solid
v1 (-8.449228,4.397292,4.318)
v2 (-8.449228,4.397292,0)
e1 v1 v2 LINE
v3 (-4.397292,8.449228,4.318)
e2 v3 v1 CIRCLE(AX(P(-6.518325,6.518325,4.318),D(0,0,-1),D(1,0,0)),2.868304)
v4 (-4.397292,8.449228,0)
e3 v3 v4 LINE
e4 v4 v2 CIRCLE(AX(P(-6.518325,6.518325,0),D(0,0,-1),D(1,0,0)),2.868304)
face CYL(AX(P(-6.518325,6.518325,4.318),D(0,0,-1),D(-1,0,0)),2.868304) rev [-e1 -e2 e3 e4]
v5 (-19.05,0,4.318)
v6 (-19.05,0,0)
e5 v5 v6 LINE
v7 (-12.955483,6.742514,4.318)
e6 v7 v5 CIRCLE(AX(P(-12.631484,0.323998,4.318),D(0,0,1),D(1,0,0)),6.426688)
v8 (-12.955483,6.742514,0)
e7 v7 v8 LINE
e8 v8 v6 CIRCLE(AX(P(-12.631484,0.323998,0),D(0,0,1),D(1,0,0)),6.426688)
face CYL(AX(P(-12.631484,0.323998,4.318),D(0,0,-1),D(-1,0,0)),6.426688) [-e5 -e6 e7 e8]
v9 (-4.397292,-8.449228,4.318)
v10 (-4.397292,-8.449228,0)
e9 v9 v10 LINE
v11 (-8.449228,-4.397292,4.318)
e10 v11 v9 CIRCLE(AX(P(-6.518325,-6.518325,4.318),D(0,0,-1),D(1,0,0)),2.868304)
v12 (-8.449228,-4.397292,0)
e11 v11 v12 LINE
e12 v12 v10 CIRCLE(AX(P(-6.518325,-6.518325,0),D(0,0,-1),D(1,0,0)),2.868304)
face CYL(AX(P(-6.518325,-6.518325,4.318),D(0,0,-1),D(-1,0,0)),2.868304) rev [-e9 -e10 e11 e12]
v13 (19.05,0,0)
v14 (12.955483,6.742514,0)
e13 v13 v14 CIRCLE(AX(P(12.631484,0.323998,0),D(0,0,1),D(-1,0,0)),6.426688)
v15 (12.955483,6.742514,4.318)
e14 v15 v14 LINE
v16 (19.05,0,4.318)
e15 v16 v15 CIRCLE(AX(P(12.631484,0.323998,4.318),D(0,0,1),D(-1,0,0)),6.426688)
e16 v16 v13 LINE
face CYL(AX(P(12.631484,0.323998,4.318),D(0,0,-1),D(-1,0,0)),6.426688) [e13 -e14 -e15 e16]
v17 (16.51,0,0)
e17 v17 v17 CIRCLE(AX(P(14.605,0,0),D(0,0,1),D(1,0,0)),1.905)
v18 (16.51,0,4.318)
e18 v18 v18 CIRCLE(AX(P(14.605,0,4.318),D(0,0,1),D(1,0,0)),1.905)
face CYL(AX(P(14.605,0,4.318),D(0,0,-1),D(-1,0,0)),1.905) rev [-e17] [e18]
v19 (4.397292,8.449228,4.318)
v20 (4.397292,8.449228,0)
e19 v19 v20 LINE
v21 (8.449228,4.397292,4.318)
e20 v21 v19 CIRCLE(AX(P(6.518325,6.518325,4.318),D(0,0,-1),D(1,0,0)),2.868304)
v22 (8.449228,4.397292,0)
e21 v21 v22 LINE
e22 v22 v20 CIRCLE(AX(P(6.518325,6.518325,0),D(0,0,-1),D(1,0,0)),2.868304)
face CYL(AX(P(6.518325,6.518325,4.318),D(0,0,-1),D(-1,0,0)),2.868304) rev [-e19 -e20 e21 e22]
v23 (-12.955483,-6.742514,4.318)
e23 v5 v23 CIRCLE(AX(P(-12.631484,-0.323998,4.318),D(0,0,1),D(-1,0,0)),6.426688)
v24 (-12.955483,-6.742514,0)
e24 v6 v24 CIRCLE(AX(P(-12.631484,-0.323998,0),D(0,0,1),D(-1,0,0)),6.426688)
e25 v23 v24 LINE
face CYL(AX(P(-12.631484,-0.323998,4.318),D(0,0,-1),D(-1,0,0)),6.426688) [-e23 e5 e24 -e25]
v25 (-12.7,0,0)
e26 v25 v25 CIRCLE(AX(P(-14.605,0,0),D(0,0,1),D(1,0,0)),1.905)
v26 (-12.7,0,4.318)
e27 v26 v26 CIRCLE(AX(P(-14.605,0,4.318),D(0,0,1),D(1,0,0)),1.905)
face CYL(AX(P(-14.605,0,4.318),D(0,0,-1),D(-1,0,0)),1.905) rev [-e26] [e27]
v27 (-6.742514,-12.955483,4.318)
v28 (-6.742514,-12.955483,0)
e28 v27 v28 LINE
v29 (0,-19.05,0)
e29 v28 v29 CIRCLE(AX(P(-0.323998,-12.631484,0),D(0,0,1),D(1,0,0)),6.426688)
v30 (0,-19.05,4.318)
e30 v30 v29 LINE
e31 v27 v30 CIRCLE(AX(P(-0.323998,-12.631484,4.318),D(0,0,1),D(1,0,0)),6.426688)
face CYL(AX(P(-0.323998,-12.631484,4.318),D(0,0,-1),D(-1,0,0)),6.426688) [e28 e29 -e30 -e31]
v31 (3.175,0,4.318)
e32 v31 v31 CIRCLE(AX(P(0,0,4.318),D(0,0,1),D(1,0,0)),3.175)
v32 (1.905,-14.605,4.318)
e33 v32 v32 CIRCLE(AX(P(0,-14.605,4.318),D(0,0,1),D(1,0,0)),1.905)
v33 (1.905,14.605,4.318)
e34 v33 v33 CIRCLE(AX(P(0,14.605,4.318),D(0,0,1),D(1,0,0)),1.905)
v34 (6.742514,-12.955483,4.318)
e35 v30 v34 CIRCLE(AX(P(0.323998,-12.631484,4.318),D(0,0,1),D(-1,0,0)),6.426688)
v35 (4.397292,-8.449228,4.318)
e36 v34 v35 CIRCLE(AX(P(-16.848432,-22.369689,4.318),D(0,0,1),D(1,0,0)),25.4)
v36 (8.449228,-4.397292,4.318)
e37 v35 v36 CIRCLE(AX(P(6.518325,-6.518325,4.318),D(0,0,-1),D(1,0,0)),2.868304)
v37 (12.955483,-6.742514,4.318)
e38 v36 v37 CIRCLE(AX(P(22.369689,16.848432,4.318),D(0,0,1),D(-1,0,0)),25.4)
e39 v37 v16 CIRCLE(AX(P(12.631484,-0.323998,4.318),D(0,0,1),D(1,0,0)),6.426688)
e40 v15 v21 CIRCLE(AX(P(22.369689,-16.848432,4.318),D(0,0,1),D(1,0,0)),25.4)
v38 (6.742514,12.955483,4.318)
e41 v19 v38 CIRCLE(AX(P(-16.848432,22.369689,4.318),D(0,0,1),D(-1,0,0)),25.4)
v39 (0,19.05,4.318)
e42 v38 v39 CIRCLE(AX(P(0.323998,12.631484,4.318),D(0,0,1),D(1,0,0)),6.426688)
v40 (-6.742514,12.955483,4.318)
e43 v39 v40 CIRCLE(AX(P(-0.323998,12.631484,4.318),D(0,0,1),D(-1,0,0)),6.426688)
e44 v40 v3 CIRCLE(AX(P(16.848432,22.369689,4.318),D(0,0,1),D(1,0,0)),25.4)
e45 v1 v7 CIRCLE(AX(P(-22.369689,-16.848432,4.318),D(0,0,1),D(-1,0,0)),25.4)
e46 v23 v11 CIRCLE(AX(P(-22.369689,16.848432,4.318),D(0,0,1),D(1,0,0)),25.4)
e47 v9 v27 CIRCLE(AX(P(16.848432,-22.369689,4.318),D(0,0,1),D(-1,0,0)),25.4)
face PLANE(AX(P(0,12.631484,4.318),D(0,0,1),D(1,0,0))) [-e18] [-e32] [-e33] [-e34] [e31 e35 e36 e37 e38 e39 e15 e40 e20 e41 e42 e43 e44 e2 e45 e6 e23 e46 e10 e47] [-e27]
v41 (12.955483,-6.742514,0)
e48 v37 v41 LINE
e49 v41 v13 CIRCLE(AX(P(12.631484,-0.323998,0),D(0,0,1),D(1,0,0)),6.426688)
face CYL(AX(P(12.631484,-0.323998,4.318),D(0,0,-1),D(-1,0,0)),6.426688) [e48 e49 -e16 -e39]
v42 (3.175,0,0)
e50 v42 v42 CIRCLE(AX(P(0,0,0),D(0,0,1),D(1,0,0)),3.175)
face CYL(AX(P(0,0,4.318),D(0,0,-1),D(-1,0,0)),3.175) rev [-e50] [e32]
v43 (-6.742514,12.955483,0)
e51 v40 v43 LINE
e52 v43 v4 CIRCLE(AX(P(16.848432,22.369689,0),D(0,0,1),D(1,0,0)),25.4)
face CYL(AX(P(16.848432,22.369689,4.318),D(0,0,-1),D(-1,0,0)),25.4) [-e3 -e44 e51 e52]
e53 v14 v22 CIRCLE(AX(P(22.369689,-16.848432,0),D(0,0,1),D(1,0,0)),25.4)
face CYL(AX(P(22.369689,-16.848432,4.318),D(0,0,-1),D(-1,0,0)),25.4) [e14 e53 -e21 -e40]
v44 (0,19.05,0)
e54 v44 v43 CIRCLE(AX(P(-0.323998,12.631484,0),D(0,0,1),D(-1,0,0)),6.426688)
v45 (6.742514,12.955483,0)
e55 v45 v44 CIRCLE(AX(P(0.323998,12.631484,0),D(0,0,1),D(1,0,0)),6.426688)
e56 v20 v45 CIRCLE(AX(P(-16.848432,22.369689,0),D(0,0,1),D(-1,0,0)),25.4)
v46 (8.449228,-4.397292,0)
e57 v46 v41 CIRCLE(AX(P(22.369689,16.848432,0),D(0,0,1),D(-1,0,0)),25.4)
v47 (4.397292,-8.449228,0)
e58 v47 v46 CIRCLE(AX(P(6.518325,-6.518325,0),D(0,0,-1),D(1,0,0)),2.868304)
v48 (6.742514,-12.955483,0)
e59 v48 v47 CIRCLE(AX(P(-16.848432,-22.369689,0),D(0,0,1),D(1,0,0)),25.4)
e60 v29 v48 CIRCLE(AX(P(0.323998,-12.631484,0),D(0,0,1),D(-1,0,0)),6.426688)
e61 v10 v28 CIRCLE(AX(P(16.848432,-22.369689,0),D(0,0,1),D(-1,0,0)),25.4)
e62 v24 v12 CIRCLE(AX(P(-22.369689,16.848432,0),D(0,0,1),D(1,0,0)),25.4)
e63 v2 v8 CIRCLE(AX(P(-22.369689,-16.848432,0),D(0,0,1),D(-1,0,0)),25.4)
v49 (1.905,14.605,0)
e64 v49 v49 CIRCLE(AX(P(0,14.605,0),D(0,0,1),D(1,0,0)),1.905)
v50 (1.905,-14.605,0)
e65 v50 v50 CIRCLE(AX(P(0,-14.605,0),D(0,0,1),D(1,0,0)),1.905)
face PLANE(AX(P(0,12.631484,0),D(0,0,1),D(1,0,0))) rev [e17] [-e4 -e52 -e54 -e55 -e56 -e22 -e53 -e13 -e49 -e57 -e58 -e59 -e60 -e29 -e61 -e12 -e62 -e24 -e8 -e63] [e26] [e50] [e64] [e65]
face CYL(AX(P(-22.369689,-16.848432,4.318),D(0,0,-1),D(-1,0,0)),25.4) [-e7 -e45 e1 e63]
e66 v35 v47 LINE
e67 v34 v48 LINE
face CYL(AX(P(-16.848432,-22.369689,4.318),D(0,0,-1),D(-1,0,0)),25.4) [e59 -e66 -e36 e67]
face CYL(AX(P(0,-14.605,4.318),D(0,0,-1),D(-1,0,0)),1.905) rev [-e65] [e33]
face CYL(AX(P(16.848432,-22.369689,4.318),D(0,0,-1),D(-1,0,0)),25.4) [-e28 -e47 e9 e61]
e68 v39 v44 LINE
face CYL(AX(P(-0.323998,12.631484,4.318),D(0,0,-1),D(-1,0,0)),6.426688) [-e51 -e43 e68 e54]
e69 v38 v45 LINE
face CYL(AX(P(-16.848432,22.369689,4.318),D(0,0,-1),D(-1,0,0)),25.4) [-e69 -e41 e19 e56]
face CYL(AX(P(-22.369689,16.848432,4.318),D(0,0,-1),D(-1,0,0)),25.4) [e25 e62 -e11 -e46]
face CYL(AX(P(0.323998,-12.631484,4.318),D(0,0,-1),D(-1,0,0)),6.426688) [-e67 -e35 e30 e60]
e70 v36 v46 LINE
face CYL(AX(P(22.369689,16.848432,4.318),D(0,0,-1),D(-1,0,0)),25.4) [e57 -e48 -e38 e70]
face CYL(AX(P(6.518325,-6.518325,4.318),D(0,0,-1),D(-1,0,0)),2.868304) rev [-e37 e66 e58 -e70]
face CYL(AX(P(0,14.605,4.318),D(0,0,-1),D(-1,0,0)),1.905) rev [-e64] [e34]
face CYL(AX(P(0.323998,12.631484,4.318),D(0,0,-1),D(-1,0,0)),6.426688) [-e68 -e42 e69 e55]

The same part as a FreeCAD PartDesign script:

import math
import FreeCAD as App
import Part
import Sketcher
Q = App.Units.Quantity

doc = App.newDocument("Part")
body = doc.addObject("PartDesign::Body", "Body")

# Sketch on XY plane
sketch1 = body.newObject("Sketcher::SketchObject", "Sketch")
sketch1.AttachmentSupport = (doc.getObject("XY_Plane"), [""])
sketch1.MapMode = "FlatFace"
sketch1.addGeometry([
    Part.ArcOfCircle(Part.Circle(App.Vector(-0.3, 12.6, 0), App.Vector(0, 0, 1), 6.4), math.radians(87), math.radians(177)),  # 0
    Part.ArcOfCircle(Part.Circle(App.Vector(16.8, 22.4, 0), App.Vector(0, 0, 1), 25.4), math.radians(-158.25), math.radians(-146.77)),  # 1
    Part.ArcOfCircle(Part.Circle(App.Vector(-6.5, 6.5, 0), App.Vector(0, 0, 1), 2.9), math.radians(-132), math.radians(42)),  # 2
    Part.ArcOfCircle(Part.Circle(App.Vector(-22.4, -16.8, 0), App.Vector(0, 0, 1), 25.4), math.radians(56.77), math.radians(68.25)),  # 3
    Part.ArcOfCircle(Part.Circle(App.Vector(-12.6, 0.3, 0), App.Vector(0, 0, 1), 6.4), math.radians(93), math.radians(183)),  # 4
    Part.ArcOfCircle(Part.Circle(App.Vector(-12.6, -0.3, 0), App.Vector(0, 0, 1), 6.4), math.radians(177), math.radians(267)),  # 5
    Part.ArcOfCircle(Part.Circle(App.Vector(-22.4, 16.8, 0), App.Vector(0, 0, 1), 25.4), math.radians(-68.25), math.radians(-56.77)),  # 6
    Part.ArcOfCircle(Part.Circle(App.Vector(-6.5, -6.5, 0), App.Vector(0, 0, 1), 2.9), math.radians(-42), math.radians(132)),  # 7
    Part.ArcOfCircle(Part.Circle(App.Vector(16.8, -22.4, 0), App.Vector(0, 0, 1), 25.4), math.radians(146.77), math.radians(158.25)),  # 8
    Part.ArcOfCircle(Part.Circle(App.Vector(-0.3, -12.6, 0), App.Vector(0, 0, 1), 6.4), math.radians(-177), math.radians(-87)),  # 9
    Part.ArcOfCircle(Part.Circle(App.Vector(0.3, -12.6, 0), App.Vector(0, 0, 1), 6.4), math.radians(-93), math.radians(-3)),  # 10
    Part.ArcOfCircle(Part.Circle(App.Vector(-16.8, -22.4, 0), App.Vector(0, 0, 1), 25.4), math.radians(21.75), math.radians(33.23)),  # 11
    Part.ArcOfCircle(Part.Circle(App.Vector(6.5, -6.5, 0), App.Vector(0, 0, 1), 2.9), math.radians(48), math.radians(222)),  # 12
    Part.ArcOfCircle(Part.Circle(App.Vector(22.4, 16.8, 0), App.Vector(0, 0, 1), 25.4), math.radians(-123.23), math.radians(-111.75)),  # 13
    Part.ArcOfCircle(Part.Circle(App.Vector(12.6, -0.3, 0), App.Vector(0, 0, 1), 6.4), math.radians(-87), math.radians(3)),  # 14
    Part.ArcOfCircle(Part.Circle(App.Vector(12.6, 0.3, 0), App.Vector(0, 0, 1), 6.4), math.radians(-3), math.radians(87)),  # 15
    Part.ArcOfCircle(Part.Circle(App.Vector(22.4, -16.8, 0), App.Vector(0, 0, 1), 25.4), math.radians(111.75), math.radians(123.23)),  # 16
    Part.ArcOfCircle(Part.Circle(App.Vector(6.5, 6.5, 0), App.Vector(0, 0, 1), 2.9), math.radians(138), math.radians(312)),  # 17
    Part.ArcOfCircle(Part.Circle(App.Vector(-16.8, 22.4, 0), App.Vector(0, 0, 1), 25.4), math.radians(-33.23), math.radians(-21.75)),  # 18
    Part.ArcOfCircle(Part.Circle(App.Vector(0.3, 12.6, 0), App.Vector(0, 0, 1), 6.4), math.radians(3), math.radians(93)),  # 19
    Part.Circle(App.Vector(0, -14.6, 0), App.Vector(0, 0, 1), 1.9),  # 20
    Part.Circle(App.Vector(14.6, 0, 0), App.Vector(0, 0, 1), 1.9),  # 21
    Part.Circle(App.Vector(0, 0, 0), App.Vector(0, 0, 1), 3.2),  # 22
    Part.Circle(App.Vector(-14.6, 0, 0), App.Vector(0, 0, 1), 1.9),  # 23
    Part.Circle(App.Vector(0, 14.6, 0), App.Vector(0, 0, 1), 1.9),  # 24
], False)
sketch1.addConstraint([
    Sketcher.Constraint("Coincident", 0, 2, 1, 1),
    Sketcher.Constraint("Coincident", 1, 2, 2, 2),
    Sketcher.Constraint("Coincident", 2, 1, 3, 1),
    Sketcher.Constraint("Coincident", 3, 2, 4, 1),
    Sketcher.Constraint("Coincident", 4, 2, 5, 1),
    Sketcher.Constraint("Coincident", 5, 2, 6, 1),
    Sketcher.Constraint("Coincident", 6, 2, 7, 2),
    Sketcher.Constraint("Coincident", 7, 1, 8, 1),
    Sketcher.Constraint("Coincident", 8, 2, 9, 1),
    Sketcher.Constraint("Coincident", 9, 2, 10, 1),
    Sketcher.Constraint("Coincident", 10, 2, 11, 1),
    Sketcher.Constraint("Coincident", 11, 2, 12, 2),
    Sketcher.Constraint("Coincident", 12, 1, 13, 1),
    Sketcher.Constraint("Coincident", 13, 2, 14, 1),
    Sketcher.Constraint("Coincident", 14, 2, 15, 1),
    Sketcher.Constraint("Coincident", 15, 2, 16, 1),
    Sketcher.Constraint("Coincident", 16, 2, 17, 2),
    Sketcher.Constraint("Coincident", 17, 1, 18, 1),
    Sketcher.Constraint("Coincident", 18, 2, 19, 1),
    Sketcher.Constraint("Coincident", 19, 2, 0, 1),
    Sketcher.Constraint("Coincident", 22, 3, -1, 1),
    Sketcher.Constraint("Equal", 1, 3),
    Sketcher.Constraint("Equal", 0, 4),
    Sketcher.Constraint("Equal", 4, 5),
    Sketcher.Constraint("Equal", 3, 6),
    Sketcher.Constraint("Equal", 2, 7),
    Sketcher.Constraint("Equal", 6, 8),
    Sketcher.Constraint("Equal", 5, 9),
    Sketcher.Constraint("Equal", 9, 10),
    Sketcher.Constraint("Equal", 8, 11),
    Sketcher.Constraint("Equal", 7, 12),
    Sketcher.Constraint("Equal", 11, 13),
    Sketcher.Constraint("Equal", 10, 14),
    Sketcher.Constraint("Equal", 14, 15),
    Sketcher.Constraint("Equal", 13, 16),
    Sketcher.Constraint("Equal", 12, 17),
    Sketcher.Constraint("Equal", 16, 18),
    Sketcher.Constraint("Equal", 15, 19),
    Sketcher.Constraint("Equal", 20, 21),
    Sketcher.Constraint("Equal", 21, 23),
    Sketcher.Constraint("Equal", 23, 24),
    Sketcher.Constraint("Symmetric", 0, 3, 10, 3, -1, 1),
    Sketcher.Constraint("Symmetric", 1, 3, 11, 3, -1, 1),
    Sketcher.Constraint("Symmetric", 2, 3, 12, 3, -1, 1),
    Sketcher.Constraint("Symmetric", 3, 3, 13, 3, -1, 1),
    Sketcher.Constraint("Symmetric", 4, 3, 14, 3, -1, 1),
    Sketcher.Constraint("Symmetric", 5, 3, 15, 3, -1, 1),
    Sketcher.Constraint("Symmetric", 6, 3, 16, 3, -1, 1),
    Sketcher.Constraint("Symmetric", 7, 3, 17, 3, -1, 1),
    Sketcher.Constraint("Symmetric", 8, 3, 18, 3, -1, 1),
    Sketcher.Constraint("Symmetric", 9, 3, 19, 3, -1, 1),
    Sketcher.Constraint("Symmetric", 21, 3, 23, 3, -1, 1),
    Sketcher.Constraint("Symmetric", 20, 3, 24, 3, -1, 1),
    Sketcher.Constraint("Symmetric", 9, 3, 10, 3, -2),
    Sketcher.Constraint("Symmetric", 8, 3, 11, 3, -2),
    Sketcher.Constraint("Symmetric", 7, 3, 12, 3, -2),
    Sketcher.Constraint("Symmetric", 6, 3, 13, 3, -2),
    Sketcher.Constraint("Symmetric", 5, 3, 14, 3, -2),
    Sketcher.Constraint("PointOnObject", 20, 3, -2),
    Sketcher.Constraint("PointOnObject", 21, 3, -1),
    Sketcher.Constraint("Radius", 1, Q("1 in")),
    Sketcher.Constraint("Diameter", 20, Q("0.15 in")),
    Sketcher.Constraint("Diameter", 22, Q("0.25 in")),
    Sketcher.Constraint("DistanceX", 4, 2, -1, 1, Q("0.75 in")),
    Sketcher.Constraint("DistanceY", 9, 2, -1, 1, Q("0.75 in")),
    Sketcher.Constraint("DistanceY", 20, 3, -1, 1, Q("0.575 in")),
    Sketcher.Constraint("DistanceX", -1, 1, 21, 3, Q("0.575 in")),
    Sketcher.Constraint("Radius", 0, Q("6.426688 mm")),
    Sketcher.Constraint("Radius", 2, Q("2.868304 mm")),
    Sketcher.Constraint("DistanceX", 0, 3, -1, 1, Q("0.323998 mm")),
    Sketcher.Constraint("DistanceY", -1, 1, 4, 3, Q("0.323998 mm")),
    Sketcher.Constraint("DistanceY", 0, 3, 0, 2, Q("0.323998 mm")),
    Sketcher.Constraint("DistanceX", 3, 2, 4, 3, Q("0.323998 mm")),
    Sketcher.Constraint("DistanceY", -1, 1, 1, 3, Q("22.369689 mm")),
    Sketcher.Constraint("DistanceX", 3, 3, -1, 1, Q("22.369689 mm")),
    Sketcher.Constraint("DistanceX", 1, 2, -1, 1, Q("4.397292 mm")),
    Sketcher.Constraint("DistanceY", -1, 1, 2, 1, Q("4.397292 mm")),
])
pad1 = body.newObject("PartDesign::Pad", "Pad")
pad1.Profile = sketch1
pad1.Length = Q("0.17 in")

doc.recompute()
